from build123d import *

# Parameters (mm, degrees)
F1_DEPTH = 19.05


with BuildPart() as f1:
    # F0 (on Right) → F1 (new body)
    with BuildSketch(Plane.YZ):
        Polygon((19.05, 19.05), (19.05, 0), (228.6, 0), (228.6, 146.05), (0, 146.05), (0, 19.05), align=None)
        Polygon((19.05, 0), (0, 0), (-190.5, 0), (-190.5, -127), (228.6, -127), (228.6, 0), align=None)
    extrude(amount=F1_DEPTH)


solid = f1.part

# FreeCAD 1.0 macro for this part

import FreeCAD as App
import Part
import Sketcher

V = App.Vector
Q = App.Units.Quantity

doc = App.newDocument("Part")
body = doc.addObject("PartDesign::Body", "Body")

sketch1 = body.newObject("Sketcher::SketchObject", "Sketch")
sketch1.AttachmentSupport = (doc.getObject("YZ_Plane"), [""])
sketch1.MapMode = "FlatFace"
sketch1.addGeometry([
    Part.LineSegment(V(19, 19, 0), V(19, 0, 0)),
    Part.LineSegment(V(19, 0, 0), V(-190, 0, 0)),
    Part.LineSegment(V(-190, 0, 0), V(-190, -127, 0)),
    Part.LineSegment(V(-190, -127, 0), V(229, -127, 0)),
    Part.LineSegment(V(229, -127, 0), V(229, 146, 0)),
    Part.LineSegment(V(229, 146, 0), V(0, 146, 0)),
    Part.LineSegment(V(0, 146, 0), V(0, 19, 0)),
    Part.LineSegment(V(0, 19, 0), V(19, 19, 0)),
], False)
sketch1.addConstraint([
    Sketcher.Constraint("Coincident", 0, 2, 1, 1),
    Sketcher.Constraint("Coincident", 1, 2, 2, 1),
    Sketcher.Constraint("Coincident", 2, 2, 3, 1),
    Sketcher.Constraint("Coincident", 3, 2, 4, 1),
    Sketcher.Constraint("Coincident", 4, 2, 5, 1),
    Sketcher.Constraint("Coincident", 5, 2, 6, 1),
    Sketcher.Constraint("Coincident", 6, 2, 7, 1),
    Sketcher.Constraint("Coincident", 7, 2, 0, 1),
    Sketcher.Constraint("Vertical", 0),
    Sketcher.Constraint("Horizontal", 1),
    Sketcher.Constraint("Vertical", 2),
    Sketcher.Constraint("Horizontal", 3),
    Sketcher.Constraint("Vertical", 4),
    Sketcher.Constraint("Horizontal", 5),
    Sketcher.Constraint("Vertical", 6),
    Sketcher.Constraint("Horizontal", 7),
    Sketcher.Constraint("PointOnObject", 0, 2, -1),
    Sketcher.Constraint("PointOnObject", 5, 2, -2),
    Sketcher.Constraint("Equal", 7, 0),
    Sketcher.Constraint("Equal", 2, 6),
    Sketcher.Constraint("DistanceX", 5, 2, 5, 1, Q("9 in")),
    Sketcher.Constraint("DistanceY", 2, 2, 2, 1, Q("5 in")),
    Sketcher.Constraint("DistanceX", 3, 1, 3, 2, Q("16.5 in")),
    Sketcher.Constraint("DistanceX", 1, 2, 1, 1, Q("8.25 in")),
])
pad1 = body.newObject("PartDesign::Pad", "Pad")
pad1.Profile = sketch1
pad1.Length = Q("0.75 in")

doc.recompute()
